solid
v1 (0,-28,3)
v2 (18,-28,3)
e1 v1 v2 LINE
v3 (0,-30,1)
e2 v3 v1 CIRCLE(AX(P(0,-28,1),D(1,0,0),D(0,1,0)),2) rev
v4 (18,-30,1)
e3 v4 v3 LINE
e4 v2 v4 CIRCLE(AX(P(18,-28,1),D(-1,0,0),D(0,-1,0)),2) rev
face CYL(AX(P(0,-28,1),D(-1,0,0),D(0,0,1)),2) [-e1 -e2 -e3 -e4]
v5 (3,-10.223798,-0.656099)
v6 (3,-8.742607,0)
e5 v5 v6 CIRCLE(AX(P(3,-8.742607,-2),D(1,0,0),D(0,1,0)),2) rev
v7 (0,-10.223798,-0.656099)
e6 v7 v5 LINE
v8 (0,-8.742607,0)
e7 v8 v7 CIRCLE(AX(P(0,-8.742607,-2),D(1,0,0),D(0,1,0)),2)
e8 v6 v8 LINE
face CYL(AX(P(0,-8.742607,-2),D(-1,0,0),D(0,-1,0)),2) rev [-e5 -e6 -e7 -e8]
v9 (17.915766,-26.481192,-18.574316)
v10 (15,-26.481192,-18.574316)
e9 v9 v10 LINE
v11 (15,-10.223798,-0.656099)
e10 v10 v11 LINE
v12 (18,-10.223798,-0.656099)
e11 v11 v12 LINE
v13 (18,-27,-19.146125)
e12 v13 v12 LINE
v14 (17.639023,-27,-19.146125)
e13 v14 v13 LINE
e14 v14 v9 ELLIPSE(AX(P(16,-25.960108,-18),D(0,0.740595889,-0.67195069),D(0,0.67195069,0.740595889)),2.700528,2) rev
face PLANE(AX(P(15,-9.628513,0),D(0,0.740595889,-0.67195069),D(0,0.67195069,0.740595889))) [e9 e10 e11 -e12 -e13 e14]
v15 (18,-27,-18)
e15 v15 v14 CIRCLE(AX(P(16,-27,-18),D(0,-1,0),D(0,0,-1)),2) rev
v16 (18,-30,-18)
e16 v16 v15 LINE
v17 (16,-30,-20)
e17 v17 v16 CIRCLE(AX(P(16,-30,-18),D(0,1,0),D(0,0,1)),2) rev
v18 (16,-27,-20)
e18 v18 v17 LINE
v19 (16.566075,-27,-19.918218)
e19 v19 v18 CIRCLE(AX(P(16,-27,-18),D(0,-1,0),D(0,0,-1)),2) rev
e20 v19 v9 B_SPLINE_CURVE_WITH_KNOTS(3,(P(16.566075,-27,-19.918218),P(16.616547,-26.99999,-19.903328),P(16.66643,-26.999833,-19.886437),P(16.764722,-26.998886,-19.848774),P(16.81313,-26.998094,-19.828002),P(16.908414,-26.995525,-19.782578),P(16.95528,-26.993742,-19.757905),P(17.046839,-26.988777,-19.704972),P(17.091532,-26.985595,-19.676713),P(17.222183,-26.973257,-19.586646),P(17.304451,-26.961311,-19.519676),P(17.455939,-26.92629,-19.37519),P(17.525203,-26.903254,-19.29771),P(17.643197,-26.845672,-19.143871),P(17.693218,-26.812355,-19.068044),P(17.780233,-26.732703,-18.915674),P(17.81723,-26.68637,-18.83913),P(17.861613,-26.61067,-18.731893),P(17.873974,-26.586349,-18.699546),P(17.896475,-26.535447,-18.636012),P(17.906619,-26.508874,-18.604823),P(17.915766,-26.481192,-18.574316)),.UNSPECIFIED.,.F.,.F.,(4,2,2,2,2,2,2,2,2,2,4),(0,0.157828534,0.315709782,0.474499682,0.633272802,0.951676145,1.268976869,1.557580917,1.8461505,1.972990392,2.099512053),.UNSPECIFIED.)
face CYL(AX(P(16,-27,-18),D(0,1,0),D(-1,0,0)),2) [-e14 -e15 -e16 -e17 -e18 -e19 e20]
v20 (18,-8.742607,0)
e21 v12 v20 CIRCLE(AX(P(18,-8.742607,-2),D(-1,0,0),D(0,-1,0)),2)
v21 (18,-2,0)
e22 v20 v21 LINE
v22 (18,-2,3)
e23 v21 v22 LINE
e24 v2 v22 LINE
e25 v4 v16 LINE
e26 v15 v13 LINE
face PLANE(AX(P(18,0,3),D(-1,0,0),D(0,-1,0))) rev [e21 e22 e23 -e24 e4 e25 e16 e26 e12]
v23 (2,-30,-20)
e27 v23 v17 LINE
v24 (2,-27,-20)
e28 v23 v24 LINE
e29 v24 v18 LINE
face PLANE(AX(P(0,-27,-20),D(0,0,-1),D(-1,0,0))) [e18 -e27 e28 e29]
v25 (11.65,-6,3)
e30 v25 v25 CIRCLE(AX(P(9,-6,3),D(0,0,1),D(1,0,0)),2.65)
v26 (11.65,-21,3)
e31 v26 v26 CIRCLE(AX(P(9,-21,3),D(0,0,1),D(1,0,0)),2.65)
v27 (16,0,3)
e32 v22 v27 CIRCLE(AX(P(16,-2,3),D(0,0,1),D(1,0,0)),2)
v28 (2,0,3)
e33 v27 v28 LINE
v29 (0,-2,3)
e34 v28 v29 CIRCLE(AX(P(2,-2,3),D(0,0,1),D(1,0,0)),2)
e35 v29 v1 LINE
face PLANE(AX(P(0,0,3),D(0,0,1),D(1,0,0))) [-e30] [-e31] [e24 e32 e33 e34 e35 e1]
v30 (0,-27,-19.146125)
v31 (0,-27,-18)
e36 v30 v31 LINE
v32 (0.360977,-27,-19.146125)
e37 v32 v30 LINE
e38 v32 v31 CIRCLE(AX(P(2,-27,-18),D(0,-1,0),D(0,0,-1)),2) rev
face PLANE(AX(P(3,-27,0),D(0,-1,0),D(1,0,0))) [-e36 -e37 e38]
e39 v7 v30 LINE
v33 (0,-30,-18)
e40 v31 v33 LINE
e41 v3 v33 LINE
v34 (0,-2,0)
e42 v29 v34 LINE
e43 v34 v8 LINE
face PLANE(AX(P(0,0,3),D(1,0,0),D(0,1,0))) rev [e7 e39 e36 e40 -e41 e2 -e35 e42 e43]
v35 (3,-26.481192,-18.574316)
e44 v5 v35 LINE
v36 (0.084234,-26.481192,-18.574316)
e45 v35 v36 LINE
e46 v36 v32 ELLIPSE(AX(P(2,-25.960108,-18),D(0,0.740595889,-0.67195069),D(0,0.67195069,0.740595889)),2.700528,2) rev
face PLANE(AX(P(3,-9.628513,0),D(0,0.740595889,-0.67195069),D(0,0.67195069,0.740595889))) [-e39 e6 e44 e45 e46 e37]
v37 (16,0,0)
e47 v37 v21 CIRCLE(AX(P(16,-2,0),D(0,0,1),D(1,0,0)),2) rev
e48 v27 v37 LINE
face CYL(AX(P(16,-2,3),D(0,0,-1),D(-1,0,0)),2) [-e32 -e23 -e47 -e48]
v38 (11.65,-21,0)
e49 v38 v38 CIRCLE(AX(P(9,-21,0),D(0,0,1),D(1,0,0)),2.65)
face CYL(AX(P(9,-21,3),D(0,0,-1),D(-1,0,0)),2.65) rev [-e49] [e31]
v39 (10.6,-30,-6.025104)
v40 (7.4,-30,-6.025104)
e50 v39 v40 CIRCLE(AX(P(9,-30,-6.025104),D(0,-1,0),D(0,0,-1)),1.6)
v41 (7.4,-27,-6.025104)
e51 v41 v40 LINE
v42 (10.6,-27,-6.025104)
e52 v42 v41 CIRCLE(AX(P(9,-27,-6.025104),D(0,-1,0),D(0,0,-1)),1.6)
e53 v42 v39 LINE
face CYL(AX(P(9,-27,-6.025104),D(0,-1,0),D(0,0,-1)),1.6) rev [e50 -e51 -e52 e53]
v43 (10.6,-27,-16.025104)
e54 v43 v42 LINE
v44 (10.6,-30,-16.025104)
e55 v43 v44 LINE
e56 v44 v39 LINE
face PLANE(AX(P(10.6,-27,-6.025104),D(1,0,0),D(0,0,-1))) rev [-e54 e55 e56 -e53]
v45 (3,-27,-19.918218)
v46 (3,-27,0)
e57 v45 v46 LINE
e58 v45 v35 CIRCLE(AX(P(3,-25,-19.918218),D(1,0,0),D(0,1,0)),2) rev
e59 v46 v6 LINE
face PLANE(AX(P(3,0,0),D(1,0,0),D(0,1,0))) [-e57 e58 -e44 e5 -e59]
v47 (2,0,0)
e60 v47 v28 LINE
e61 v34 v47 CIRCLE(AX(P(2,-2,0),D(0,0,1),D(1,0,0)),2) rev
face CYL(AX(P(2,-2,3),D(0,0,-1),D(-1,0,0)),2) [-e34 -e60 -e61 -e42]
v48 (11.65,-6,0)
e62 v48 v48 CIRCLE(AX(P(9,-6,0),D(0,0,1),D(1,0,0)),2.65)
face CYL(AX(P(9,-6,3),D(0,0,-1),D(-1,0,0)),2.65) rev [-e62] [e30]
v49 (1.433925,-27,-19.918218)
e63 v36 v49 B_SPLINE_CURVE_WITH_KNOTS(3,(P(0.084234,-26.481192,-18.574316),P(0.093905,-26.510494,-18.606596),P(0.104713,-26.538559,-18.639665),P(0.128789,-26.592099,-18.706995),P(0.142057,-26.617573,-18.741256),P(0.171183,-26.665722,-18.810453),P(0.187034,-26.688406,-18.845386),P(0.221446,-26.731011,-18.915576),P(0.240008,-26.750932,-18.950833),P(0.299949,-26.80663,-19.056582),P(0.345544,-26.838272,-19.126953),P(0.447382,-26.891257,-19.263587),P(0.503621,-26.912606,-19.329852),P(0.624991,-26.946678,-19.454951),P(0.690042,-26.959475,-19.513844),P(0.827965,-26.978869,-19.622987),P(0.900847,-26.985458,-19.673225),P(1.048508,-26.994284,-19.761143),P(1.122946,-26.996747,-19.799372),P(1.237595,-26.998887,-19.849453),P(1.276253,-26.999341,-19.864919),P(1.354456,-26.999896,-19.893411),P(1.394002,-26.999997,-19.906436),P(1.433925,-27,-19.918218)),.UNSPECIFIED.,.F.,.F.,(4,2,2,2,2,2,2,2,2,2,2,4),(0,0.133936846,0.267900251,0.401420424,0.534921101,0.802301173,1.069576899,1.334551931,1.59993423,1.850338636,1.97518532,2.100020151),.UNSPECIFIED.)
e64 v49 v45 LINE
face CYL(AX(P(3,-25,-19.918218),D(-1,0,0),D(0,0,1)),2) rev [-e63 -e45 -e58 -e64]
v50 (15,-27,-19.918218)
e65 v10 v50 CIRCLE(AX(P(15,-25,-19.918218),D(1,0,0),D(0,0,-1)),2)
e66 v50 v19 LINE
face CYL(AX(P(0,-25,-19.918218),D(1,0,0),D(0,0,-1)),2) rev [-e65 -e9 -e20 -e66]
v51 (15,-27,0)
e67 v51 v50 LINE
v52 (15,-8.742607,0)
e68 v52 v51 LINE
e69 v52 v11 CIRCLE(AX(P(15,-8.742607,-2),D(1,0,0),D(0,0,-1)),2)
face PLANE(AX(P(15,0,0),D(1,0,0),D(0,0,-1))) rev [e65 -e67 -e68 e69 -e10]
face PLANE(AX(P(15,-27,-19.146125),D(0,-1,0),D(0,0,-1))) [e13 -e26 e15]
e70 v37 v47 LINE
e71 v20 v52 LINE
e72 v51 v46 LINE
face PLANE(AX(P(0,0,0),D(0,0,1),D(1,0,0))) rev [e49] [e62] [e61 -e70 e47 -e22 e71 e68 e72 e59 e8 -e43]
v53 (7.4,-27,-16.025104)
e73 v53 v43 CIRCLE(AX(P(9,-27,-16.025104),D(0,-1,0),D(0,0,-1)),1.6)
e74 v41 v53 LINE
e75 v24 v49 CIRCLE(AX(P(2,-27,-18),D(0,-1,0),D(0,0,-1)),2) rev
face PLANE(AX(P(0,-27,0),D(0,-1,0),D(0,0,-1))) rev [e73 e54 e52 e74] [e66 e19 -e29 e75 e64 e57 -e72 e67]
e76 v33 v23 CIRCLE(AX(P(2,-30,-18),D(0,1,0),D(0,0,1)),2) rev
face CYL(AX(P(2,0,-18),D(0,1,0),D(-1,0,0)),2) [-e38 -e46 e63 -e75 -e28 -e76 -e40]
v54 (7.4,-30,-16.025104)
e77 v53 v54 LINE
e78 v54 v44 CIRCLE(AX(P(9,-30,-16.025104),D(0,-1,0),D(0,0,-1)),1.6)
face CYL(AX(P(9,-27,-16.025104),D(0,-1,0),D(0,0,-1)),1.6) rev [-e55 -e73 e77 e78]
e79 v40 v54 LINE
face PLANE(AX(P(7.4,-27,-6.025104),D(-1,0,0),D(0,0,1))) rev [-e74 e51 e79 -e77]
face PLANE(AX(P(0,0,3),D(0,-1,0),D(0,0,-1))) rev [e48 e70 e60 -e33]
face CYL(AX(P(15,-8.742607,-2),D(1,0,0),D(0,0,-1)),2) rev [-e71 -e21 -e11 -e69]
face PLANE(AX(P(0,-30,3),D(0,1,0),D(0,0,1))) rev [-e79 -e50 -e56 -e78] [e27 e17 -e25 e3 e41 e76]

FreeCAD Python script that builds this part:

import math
import FreeCAD as App
import Part
import Sketcher
from FreeCAD import Vector


def edges_at(feature, points):
    """Names of the edges that pass closest to the given points."""
    edges = feature.Shape.Edges
    near = lambda p: min(range(len(edges)), key=lambda i: edges[i].distToShape(Part.Vertex(*p))[0])
    return sorted({f"Edge{near(p) + 1}" for p in points})

doc = App.newDocument("Part")
params = doc.addObject("Spreadsheet::Sheet", "Params")
for row, (alias, value) in enumerate([
    ("sketch1_diameter", "5.3 mm"),
    ("sketch1_width", "18 mm"),
    ("sketch1_height", "30 mm"),
    ("pad1_length", "3 mm"),
    ("sketch2_radius", "1.6 mm"),
    ("sketch2_width", "18 mm"),
    ("sketch2_height", "20 mm"),
    ("sketch2_height2", "10 mm"),
    ("pad2_length", "3 mm"),
    ("fillet_radius", "2 mm"),
    ("pad3_length", "3 mm"),
    ("pad4_length", "3 mm"),
    ("fillet2_radius", "2 mm"),
], start=1):
    params.set(f"A{row}", alias)
    params.set(f"B{row}", "=" + value)
    params.setAlias(f"B{row}", alias)

body = doc.addObject("PartDesign::Body", "Body")

# Sketch on XY plane
sketch1 = body.newObject("Sketcher::SketchObject", "Sketch")
sketch1.AttachmentSupport = (doc.getObject("XY_Plane"), [""])
sketch1.MapMode = "FlatFace"
sketch1.addGeometry([
    Part.LineSegment(Vector(0, 0, 0), Vector(0, -30, 0)),  # 0
    Part.LineSegment(Vector(0, -30, 0), Vector(18, -30, 0)),  # 1
    Part.LineSegment(Vector(18, -30, 0), Vector(18, 0, 0)),  # 2
    Part.LineSegment(Vector(18, 0, 0), Vector(0, 0, 0)),  # 3
    Part.Circle(Vector(9, -21, 0), Vector(0, 0, 1), 2.6),  # 4
    Part.Circle(Vector(9, -6, 0), Vector(0, 0, 1), 2.6),  # 5
], False)
sketch1.addConstraint([
    Sketcher.Constraint("Coincident", 0, 2, 1, 1),
    Sketcher.Constraint("Coincident", 1, 2, 2, 1),
    Sketcher.Constraint("Coincident", 2, 2, 3, 1),
    Sketcher.Constraint("Coincident", 3, 2, 0, 1),
    Sketcher.Constraint("Vertical", 0),
    Sketcher.Constraint("Horizontal", 1),
    Sketcher.Constraint("Vertical", 2),
    Sketcher.Constraint("Horizontal", 3),
    Sketcher.Constraint("Coincident", 3, 2, -1, 1),
    Sketcher.Constraint("Equal", 4, 5),
    Sketcher.Constraint("Vertical", 4, 3, 5, 3),
    Sketcher.Constraint("Diameter", 4, 5.3),
    Sketcher.Constraint("DistanceX", 1, 1, 1, 2, 18.0),
    Sketcher.Constraint("DistanceY", 0, 2, 0, 1, 30.0),
    Sketcher.Constraint("DistanceX", -1, 1, 4, 3, 9.0),
    Sketcher.Constraint("DistanceY", 4, 3, -1, 1, 21.0),
    Sketcher.Constraint("DistanceY", 5, 3, -1, 1, 6.0),
])
sketch1.setExpression("Constraints[11]", "Params.sketch1_diameter")
sketch1.setExpression("Constraints[12]", "Params.sketch1_width")
sketch1.setExpression("Constraints[13]", "Params.sketch1_height")
pad1 = body.newObject("PartDesign::Pad", "Pad")
pad1.Profile = sketch1
pad1.setExpression("Length", "Params.pad1_length")

# Sketch on XZ plane
sketch2 = body.newObject("Sketcher::SketchObject", "Sketch001")
sketch2.AttachmentSupport = (doc.getObject("XZ_Plane"), [""])
sketch2.MapMode = "FlatFace"
sketch2.AttachmentOffset = App.Placement(Vector(0, 0, 30), App.Rotation())
sketch2.addGeometry([
    Part.LineSegment(Vector(18, -20, 0), Vector(18, 0, 0)),  # 0
    Part.LineSegment(Vector(18, 0, 0), Vector(0, 0, 0)),  # 1
    Part.LineSegment(Vector(0, 0, 0), Vector(0, -20, 0)),  # 2
    Part.LineSegment(Vector(0, -20, 0), Vector(18, -20, 0)),  # 3
    Part.ArcOfCircle(Part.Circle(Vector(9, -6, 0), Vector(0, 0, 1), 1.6), math.radians(0), math.radians(180)),  # 4
    Part.LineSegment(Vector(10.6, -6, 0), Vector(10.6, -16, 0)),  # 5
    Part.ArcOfCircle(Part.Circle(Vector(9, -16, 0), Vector(0, 0, 1), 1.6), math.radians(180), math.radians(360)),  # 6
    Part.LineSegment(Vector(7.4, -16, 0), Vector(7.4, -6, 0)),  # 7
], False)
sketch2.addConstraint([
    Sketcher.Constraint("Coincident", 0, 2, 1, 1),
    Sketcher.Constraint("Coincident", 1, 2, 2, 1),
    Sketcher.Constraint("Coincident", 2, 2, 3, 1),
    Sketcher.Constraint("Coincident", 3, 2, 0, 1),
    Sketcher.Constraint("Tangent", 4, 1, 5, 1),
    Sketcher.Constraint("Tangent", 5, 2, 6, 2),
    Sketcher.Constraint("Tangent", 6, 1, 7, 1),
    Sketcher.Constraint("Tangent", 7, 2, 4, 2),
    Sketcher.Constraint("Vertical", 0),
    Sketcher.Constraint("Horizontal", 1),
    Sketcher.Constraint("Vertical", 2),
    Sketcher.Constraint("Horizontal", 3),
    Sketcher.Constraint("Vertical", 5),
    Sketcher.Constraint("Vertical", 7),
    Sketcher.Constraint("Coincident", 1, 2, -1, 1),
    Sketcher.Constraint("Radius", 4, 1.6),
    Sketcher.Constraint("DistanceX", 1, 2, 1, 1, 18.0),
    Sketcher.Constraint("DistanceY", 0, 1, 0, 2, 20.0),
    Sketcher.Constraint("DistanceY", 5, 2, 5, 1, 10.0),
    Sketcher.Constraint("DistanceX", -1, 1, 4, 3, 9.0),
    Sketcher.Constraint("DistanceY", 4, 3, -1, 1, 6.025104),
])
sketch2.setExpression("Constraints[15]", "Params.sketch2_radius")
sketch2.setExpression("Constraints[16]", "Params.sketch2_width")
sketch2.setExpression("Constraints[17]", "Params.sketch2_height")
sketch2.setExpression("Constraints[18]", "Params.sketch2_height2")
pad2 = body.newObject("PartDesign::Pad", "Pad001")
pad2.Profile = sketch2
pad2.setExpression("Length", "Params.pad2_length")
pad2.Reversed = True
doc.recompute()

fillet = body.newObject("PartDesign::Fillet", "Fillet")
fillet.Base = (pad2, edges_at(pad2, [
    (0, -28.5, -20),
    (18, -28.5, -20),
    (0, 0, 1.5),
    (18, 0, 1.5),
]))
fillet.setExpression("Radius", "Params.fillet_radius")

# Sketch on YZ plane
sketch3 = body.newObject("Sketcher::SketchObject", "Sketch002")
sketch3.AttachmentSupport = (doc.getObject("YZ_Plane"), [""])
sketch3.MapMode = "FlatFace"
sketch3.addGeometry([
    Part.LineSegment(Vector(-10, 0, 0), Vector(-27, -19, 0)),
    Part.LineSegment(Vector(-27, -19, 0), Vector(-27, 0, 0)),
    Part.LineSegment(Vector(-27, 0, 0), Vector(-10, 0, 0)),
], False)
sketch3.addConstraint([
    Sketcher.Constraint("Coincident", 0, 2, 1, 1),
    Sketcher.Constraint("Coincident", 1, 2, 2, 1),
    Sketcher.Constraint("Coincident", 2, 2, 0, 1),
    Sketcher.Constraint("Vertical", 1),
    Sketcher.Constraint("Horizontal", 2),
    Sketcher.Constraint("PointOnObject", 1, 2, -1),
    Sketcher.Constraint("DistanceX", 0, 2, -1, 1, 27.0),
    Sketcher.Constraint("DistanceX", 2, 1, 2, 2, 17.371487),
    Sketcher.Constraint("DistanceY", 1, 1, 1, 2, 19.146125),
])
pad3 = body.newObject("PartDesign::Pad", "Pad002")
pad3.Profile = sketch3
pad3.setExpression("Length", "Params.pad3_length")

# Sketch on YZ plane
sketch4 = body.newObject("Sketcher::SketchObject", "Sketch003")
sketch4.AttachmentSupport = (doc.getObject("YZ_Plane"), [""])
sketch4.MapMode = "FlatFace"
sketch4.AttachmentOffset = App.Placement(Vector(0, 0, 18), App.Rotation())
sketch4.addGeometry([
    Part.LineSegment(Vector(-27, -19, 0), Vector(-10, 0, 0)),
    Part.LineSegment(Vector(-10, 0, 0), Vector(-27, 0, 0)),
    Part.LineSegment(Vector(-27, 0, 0), Vector(-27, -19, 0)),
], False)
sketch4.addConstraint([
    Sketcher.Constraint("Coincident", 0, 2, 1, 1),
    Sketcher.Constraint("Coincident", 1, 2, 2, 1),
    Sketcher.Constraint("Coincident", 2, 2, 0, 1),
    Sketcher.Constraint("Horizontal", 1),
    Sketcher.Constraint("Vertical", 2),
    Sketcher.Constraint("PointOnObject", 0, 2, -1),
    Sketcher.Constraint("DistanceX", 1, 2, -1, 1, 27.0),
    Sketcher.Constraint("DistanceX", 1, 2, 1, 1, 17.371487),
    Sketcher.Constraint("DistanceY", 2, 2, 2, 1, 19.146125),
])
pad4 = body.newObject("PartDesign::Pad", "Pad003")
pad4.Profile = sketch4
pad4.setExpression("Length", "Params.pad4_length")
pad4.Reversed = True
doc.recompute()

fillet2 = body.newObject("PartDesign::Fillet", "Fillet001")
fillet2.Base = (pad4, edges_at(pad4, [
    (1.5, -9.629, 0),
    (1.68, -27, -19.146),
    (16.32, -27, -19.146),
    (16.5, -9.629, 0),
    (9, -30, 3),
]))
fillet2.setExpression("Radius", "Params.fillet2_radius")

doc.recompute()
